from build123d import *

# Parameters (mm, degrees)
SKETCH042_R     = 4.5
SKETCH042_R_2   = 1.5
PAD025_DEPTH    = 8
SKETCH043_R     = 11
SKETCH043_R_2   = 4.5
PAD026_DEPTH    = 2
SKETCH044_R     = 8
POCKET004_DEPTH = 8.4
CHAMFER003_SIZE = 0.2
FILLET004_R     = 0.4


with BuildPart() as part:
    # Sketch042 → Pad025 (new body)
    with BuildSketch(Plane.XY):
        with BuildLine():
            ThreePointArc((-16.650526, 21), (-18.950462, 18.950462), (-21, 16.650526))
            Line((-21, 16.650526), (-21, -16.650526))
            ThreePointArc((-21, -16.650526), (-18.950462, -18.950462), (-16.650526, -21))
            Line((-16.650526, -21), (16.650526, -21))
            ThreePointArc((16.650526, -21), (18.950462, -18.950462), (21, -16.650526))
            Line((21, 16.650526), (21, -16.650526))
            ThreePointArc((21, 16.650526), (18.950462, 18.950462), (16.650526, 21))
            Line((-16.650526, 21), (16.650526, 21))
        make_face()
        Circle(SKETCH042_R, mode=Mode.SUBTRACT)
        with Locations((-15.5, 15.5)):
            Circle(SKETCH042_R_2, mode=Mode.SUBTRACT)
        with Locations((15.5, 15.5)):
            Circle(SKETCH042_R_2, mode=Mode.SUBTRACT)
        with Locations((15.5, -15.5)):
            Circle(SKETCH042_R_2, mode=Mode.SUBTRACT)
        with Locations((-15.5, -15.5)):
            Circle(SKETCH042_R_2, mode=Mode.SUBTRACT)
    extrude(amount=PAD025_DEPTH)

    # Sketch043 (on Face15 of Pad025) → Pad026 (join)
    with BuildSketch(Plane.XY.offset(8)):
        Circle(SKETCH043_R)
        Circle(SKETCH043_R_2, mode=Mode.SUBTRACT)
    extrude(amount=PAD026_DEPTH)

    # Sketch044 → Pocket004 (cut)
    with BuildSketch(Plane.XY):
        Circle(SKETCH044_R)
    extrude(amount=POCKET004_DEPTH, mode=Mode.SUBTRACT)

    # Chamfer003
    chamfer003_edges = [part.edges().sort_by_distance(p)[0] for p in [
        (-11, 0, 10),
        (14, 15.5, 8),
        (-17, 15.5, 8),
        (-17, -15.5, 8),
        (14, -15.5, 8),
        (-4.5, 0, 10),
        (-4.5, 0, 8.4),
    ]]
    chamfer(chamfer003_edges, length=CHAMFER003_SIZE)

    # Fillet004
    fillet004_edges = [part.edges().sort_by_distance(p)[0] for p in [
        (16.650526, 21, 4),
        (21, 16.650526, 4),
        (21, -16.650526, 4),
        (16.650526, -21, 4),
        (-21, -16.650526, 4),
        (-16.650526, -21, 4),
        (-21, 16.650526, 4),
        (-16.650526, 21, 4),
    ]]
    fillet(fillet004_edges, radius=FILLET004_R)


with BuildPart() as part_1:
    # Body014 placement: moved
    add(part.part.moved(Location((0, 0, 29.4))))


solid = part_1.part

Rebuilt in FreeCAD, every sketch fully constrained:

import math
import FreeCAD as App
import Part
import Sketcher

V = App.Vector


def edges_at(feature, points):
    """Names of the edges that pass closest to the given points."""
    edges = feature.Shape.Edges
    near = lambda p: min(range(len(edges)), key=lambda i: edges[i].distToShape(Part.Vertex(*p))[0])
    return sorted({f"Edge{near(p) + 1}" for p in points})

doc = App.newDocument("Part")
body = doc.addObject("PartDesign::Body", "Body")

# Sketch on XY plane
sketch1 = body.newObject("Sketcher::SketchObject", "Sketch")
sketch1.AttachmentSupport = (doc.getObject("XY_Plane"), [""])
sketch1.MapMode = "FlatFace"
sketch1.addGeometry([
    Part.ArcOfCircle(Part.Circle(V(-0.000008, 0.000008, 0), V(0, 0, 1), 26.799989), math.radians(128.41027), math.radians(141.58973)),  # 0
    Part.LineSegment(V(-21, 16.650526, 0), V(-21, -16.650526, 0)),  # 1
    Part.ArcOfCircle(Part.Circle(V(-0.000008, -0.000008, 0), V(0, 0, 1), 26.799989), math.radians(-141.58973), math.radians(-128.41027)),  # 2
    Part.LineSegment(V(-16.650526, -21, 0), V(16.650526, -21, 0)),  # 3
    Part.ArcOfCircle(Part.Circle(V(0.000008, -0.000008, 0), V(0, 0, 1), 26.799989), math.radians(-51.58973), math.radians(-38.41027)),  # 4
    Part.LineSegment(V(21, -16.650526, 0), V(21, 16.650526, 0)),  # 5
    Part.ArcOfCircle(Part.Circle(V(0.000008, 0.000008, 0), V(0, 0, 1), 26.799989), math.radians(38.41027), math.radians(51.58973)),  # 6
    Part.LineSegment(V(16.650526, 21, 0), V(-16.650526, 21, 0)),  # 7
    Part.Circle(V(-15.5, -15.5, 0), V(0, 0, 1), 1.5),  # 8
    Part.Circle(V(15.5, -15.5, 0), V(0, 0, 1), 1.5),  # 9
    Part.Circle(V(-15.5, 15.5, 0), V(0, 0, 1), 1.5),  # 10
    Part.Circle(V(0, 0, 0), V(0, 0, 1), 4.5),  # 11
    Part.Circle(V(15.5, 15.5, 0), V(0, 0, 1), 1.5),  # 12
], False)
sketch1.addConstraint([
    Sketcher.Constraint("Coincident", 0, 2, 1, 1),
    Sketcher.Constraint("Coincident", 1, 2, 2, 1),
    Sketcher.Constraint("Coincident", 2, 2, 3, 1),
    Sketcher.Constraint("Coincident", 3, 2, 4, 1),
    Sketcher.Constraint("Coincident", 4, 2, 5, 1),
    Sketcher.Constraint("Coincident", 5, 2, 6, 1),
    Sketcher.Constraint("Coincident", 6, 2, 7, 1),
    Sketcher.Constraint("Coincident", 7, 2, 0, 1),
    Sketcher.Constraint("Vertical", 1),
    Sketcher.Constraint("Horizontal", 3),
    Sketcher.Constraint("Vertical", 5),
    Sketcher.Constraint("Horizontal", 7),
    Sketcher.Constraint("Coincident", 11, 3, -1, 1),
    Sketcher.Constraint("Equal", 0, 2),
    Sketcher.Constraint("Equal", 2, 4),
    Sketcher.Constraint("Equal", 4, 6),
    Sketcher.Constraint("Equal", 8, 9),
    Sketcher.Constraint("Equal", 9, 10),
    Sketcher.Constraint("Equal", 10, 12),
    Sketcher.Constraint("Symmetric", 0, 3, 4, 3, -1, 1),
    Sketcher.Constraint("Symmetric", 2, 3, 6, 3, -1, 1),
    Sketcher.Constraint("Symmetric", 9, 3, 10, 3, -1, 1),
    Sketcher.Constraint("Symmetric", 8, 3, 12, 3, -1, 1),
    Sketcher.Constraint("Symmetric", 2, 3, 4, 3, -2),
    Sketcher.Constraint("Symmetric", 8, 3, 9, 3, -2),
    Sketcher.Constraint("Horizontal", 1, 2, 4, 2),
    Sketcher.Constraint("Vertical", 3, 2, 6, 2),
    Sketcher.Constraint("Equal", 7, 1),
    Sketcher.Constraint("Diameter", 8, 3.0),
    Sketcher.Constraint("Diameter", 11, 9.0),
    Sketcher.Constraint("DistanceX", 0, 2, -1, 1, 21.0),
    Sketcher.Constraint("DistanceY", 2, 2, -1, 1, 21.0),
    Sketcher.Constraint("DistanceX", 8, 3, 9, 3, 31.0),
    Sketcher.Constraint("DistanceY", 8, 3, 10, 3, 31.0),
    Sketcher.Constraint("Radius", 0, 26.799989),
    Sketcher.Constraint("DistanceX", 3, 1, 3, 2, 33.301052),
])
pad1 = body.newObject("PartDesign::Pad", "Pad")
pad1.Profile = sketch1
pad1.Length = 8

# Sketch on XY plane
sketch2 = body.newObject("Sketcher::SketchObject", "Sketch001")
sketch2.AttachmentSupport = (doc.getObject("XY_Plane"), [""])
sketch2.MapMode = "FlatFace"
sketch2.AttachmentOffset = App.Placement(V(0, 0, 8), App.Rotation())
sketch2.addGeometry([
    Part.Circle(V(0, 0, 0), V(0, 0, 1), 11),
    Part.Circle(V(0, 0, 0), V(0, 0, 1), 4.5),
], False)
sketch2.addConstraint([
    Sketcher.Constraint("Coincident", 0, 3, -1, 1),
    Sketcher.Constraint("Coincident", 1, 3, -1, 1),
    Sketcher.Constraint("Diameter", 0, 22.0),
    Sketcher.Constraint("Diameter", 1, 9.0),
])
pad2 = body.newObject("PartDesign::Pad", "Pad001")
pad2.Profile = sketch2
pad2.Length = 2

# Sketch on XY plane
sketch3 = body.newObject("Sketcher::SketchObject", "Sketch002")
sketch3.AttachmentSupport = (doc.getObject("XY_Plane"), [""])
sketch3.MapMode = "FlatFace"
sketch3.addGeometry(Part.Circle(V(0, 0, 0), V(0, 0, 1), 8), False)
sketch3.addConstraint([
    Sketcher.Constraint("Coincident", 0, 3, -1, 1),
    Sketcher.Constraint("Diameter", 0, 16.0),
])
pocket1 = body.newObject("PartDesign::Pocket", "Pocket")
pocket1.Profile = sketch3
pocket1.Length = 8.4
pocket1.Reversed = True
doc.recompute()

chamfer = body.newObject("PartDesign::Chamfer", "Chamfer")
chamfer.Base = (pocket1, edges_at(pocket1, [
    (-11, 0, 10),
    (14, 15.5, 8),
    (-17, 15.5, 8),
    (-17, -15.5, 8),
    (14, -15.5, 8),
    (-4.5, 0, 10),
    (-4.5, 0, 8.4),
]))
chamfer.Size = 0.2
doc.recompute()

fillet = body.newObject("PartDesign::Fillet", "Fillet")
fillet.Base = (chamfer, edges_at(chamfer, [
    (16.651, 21, 4),
    (21, 16.651, 4),
    (21, -16.651, 4),
    (16.651, -21, 4),
    (-21, -16.651, 4),
    (-16.651, -21, 4),
    (-21, 16.651, 4),
    (-16.651, 21, 4),
]))
fillet.Radius = 0.4
body2 = doc.addObject("PartDesign::Body", "Body001")
doc.recompute()

body.Placement = App.Placement(V(0, 0, 29.4), App.Rotation(V(0, 0, 1), 0))
boolean = body2.newObject("PartDesign::Boolean", "Boolean")
boolean.Type = "Fuse"
boolean.addObjects([body])

doc.recompute()
